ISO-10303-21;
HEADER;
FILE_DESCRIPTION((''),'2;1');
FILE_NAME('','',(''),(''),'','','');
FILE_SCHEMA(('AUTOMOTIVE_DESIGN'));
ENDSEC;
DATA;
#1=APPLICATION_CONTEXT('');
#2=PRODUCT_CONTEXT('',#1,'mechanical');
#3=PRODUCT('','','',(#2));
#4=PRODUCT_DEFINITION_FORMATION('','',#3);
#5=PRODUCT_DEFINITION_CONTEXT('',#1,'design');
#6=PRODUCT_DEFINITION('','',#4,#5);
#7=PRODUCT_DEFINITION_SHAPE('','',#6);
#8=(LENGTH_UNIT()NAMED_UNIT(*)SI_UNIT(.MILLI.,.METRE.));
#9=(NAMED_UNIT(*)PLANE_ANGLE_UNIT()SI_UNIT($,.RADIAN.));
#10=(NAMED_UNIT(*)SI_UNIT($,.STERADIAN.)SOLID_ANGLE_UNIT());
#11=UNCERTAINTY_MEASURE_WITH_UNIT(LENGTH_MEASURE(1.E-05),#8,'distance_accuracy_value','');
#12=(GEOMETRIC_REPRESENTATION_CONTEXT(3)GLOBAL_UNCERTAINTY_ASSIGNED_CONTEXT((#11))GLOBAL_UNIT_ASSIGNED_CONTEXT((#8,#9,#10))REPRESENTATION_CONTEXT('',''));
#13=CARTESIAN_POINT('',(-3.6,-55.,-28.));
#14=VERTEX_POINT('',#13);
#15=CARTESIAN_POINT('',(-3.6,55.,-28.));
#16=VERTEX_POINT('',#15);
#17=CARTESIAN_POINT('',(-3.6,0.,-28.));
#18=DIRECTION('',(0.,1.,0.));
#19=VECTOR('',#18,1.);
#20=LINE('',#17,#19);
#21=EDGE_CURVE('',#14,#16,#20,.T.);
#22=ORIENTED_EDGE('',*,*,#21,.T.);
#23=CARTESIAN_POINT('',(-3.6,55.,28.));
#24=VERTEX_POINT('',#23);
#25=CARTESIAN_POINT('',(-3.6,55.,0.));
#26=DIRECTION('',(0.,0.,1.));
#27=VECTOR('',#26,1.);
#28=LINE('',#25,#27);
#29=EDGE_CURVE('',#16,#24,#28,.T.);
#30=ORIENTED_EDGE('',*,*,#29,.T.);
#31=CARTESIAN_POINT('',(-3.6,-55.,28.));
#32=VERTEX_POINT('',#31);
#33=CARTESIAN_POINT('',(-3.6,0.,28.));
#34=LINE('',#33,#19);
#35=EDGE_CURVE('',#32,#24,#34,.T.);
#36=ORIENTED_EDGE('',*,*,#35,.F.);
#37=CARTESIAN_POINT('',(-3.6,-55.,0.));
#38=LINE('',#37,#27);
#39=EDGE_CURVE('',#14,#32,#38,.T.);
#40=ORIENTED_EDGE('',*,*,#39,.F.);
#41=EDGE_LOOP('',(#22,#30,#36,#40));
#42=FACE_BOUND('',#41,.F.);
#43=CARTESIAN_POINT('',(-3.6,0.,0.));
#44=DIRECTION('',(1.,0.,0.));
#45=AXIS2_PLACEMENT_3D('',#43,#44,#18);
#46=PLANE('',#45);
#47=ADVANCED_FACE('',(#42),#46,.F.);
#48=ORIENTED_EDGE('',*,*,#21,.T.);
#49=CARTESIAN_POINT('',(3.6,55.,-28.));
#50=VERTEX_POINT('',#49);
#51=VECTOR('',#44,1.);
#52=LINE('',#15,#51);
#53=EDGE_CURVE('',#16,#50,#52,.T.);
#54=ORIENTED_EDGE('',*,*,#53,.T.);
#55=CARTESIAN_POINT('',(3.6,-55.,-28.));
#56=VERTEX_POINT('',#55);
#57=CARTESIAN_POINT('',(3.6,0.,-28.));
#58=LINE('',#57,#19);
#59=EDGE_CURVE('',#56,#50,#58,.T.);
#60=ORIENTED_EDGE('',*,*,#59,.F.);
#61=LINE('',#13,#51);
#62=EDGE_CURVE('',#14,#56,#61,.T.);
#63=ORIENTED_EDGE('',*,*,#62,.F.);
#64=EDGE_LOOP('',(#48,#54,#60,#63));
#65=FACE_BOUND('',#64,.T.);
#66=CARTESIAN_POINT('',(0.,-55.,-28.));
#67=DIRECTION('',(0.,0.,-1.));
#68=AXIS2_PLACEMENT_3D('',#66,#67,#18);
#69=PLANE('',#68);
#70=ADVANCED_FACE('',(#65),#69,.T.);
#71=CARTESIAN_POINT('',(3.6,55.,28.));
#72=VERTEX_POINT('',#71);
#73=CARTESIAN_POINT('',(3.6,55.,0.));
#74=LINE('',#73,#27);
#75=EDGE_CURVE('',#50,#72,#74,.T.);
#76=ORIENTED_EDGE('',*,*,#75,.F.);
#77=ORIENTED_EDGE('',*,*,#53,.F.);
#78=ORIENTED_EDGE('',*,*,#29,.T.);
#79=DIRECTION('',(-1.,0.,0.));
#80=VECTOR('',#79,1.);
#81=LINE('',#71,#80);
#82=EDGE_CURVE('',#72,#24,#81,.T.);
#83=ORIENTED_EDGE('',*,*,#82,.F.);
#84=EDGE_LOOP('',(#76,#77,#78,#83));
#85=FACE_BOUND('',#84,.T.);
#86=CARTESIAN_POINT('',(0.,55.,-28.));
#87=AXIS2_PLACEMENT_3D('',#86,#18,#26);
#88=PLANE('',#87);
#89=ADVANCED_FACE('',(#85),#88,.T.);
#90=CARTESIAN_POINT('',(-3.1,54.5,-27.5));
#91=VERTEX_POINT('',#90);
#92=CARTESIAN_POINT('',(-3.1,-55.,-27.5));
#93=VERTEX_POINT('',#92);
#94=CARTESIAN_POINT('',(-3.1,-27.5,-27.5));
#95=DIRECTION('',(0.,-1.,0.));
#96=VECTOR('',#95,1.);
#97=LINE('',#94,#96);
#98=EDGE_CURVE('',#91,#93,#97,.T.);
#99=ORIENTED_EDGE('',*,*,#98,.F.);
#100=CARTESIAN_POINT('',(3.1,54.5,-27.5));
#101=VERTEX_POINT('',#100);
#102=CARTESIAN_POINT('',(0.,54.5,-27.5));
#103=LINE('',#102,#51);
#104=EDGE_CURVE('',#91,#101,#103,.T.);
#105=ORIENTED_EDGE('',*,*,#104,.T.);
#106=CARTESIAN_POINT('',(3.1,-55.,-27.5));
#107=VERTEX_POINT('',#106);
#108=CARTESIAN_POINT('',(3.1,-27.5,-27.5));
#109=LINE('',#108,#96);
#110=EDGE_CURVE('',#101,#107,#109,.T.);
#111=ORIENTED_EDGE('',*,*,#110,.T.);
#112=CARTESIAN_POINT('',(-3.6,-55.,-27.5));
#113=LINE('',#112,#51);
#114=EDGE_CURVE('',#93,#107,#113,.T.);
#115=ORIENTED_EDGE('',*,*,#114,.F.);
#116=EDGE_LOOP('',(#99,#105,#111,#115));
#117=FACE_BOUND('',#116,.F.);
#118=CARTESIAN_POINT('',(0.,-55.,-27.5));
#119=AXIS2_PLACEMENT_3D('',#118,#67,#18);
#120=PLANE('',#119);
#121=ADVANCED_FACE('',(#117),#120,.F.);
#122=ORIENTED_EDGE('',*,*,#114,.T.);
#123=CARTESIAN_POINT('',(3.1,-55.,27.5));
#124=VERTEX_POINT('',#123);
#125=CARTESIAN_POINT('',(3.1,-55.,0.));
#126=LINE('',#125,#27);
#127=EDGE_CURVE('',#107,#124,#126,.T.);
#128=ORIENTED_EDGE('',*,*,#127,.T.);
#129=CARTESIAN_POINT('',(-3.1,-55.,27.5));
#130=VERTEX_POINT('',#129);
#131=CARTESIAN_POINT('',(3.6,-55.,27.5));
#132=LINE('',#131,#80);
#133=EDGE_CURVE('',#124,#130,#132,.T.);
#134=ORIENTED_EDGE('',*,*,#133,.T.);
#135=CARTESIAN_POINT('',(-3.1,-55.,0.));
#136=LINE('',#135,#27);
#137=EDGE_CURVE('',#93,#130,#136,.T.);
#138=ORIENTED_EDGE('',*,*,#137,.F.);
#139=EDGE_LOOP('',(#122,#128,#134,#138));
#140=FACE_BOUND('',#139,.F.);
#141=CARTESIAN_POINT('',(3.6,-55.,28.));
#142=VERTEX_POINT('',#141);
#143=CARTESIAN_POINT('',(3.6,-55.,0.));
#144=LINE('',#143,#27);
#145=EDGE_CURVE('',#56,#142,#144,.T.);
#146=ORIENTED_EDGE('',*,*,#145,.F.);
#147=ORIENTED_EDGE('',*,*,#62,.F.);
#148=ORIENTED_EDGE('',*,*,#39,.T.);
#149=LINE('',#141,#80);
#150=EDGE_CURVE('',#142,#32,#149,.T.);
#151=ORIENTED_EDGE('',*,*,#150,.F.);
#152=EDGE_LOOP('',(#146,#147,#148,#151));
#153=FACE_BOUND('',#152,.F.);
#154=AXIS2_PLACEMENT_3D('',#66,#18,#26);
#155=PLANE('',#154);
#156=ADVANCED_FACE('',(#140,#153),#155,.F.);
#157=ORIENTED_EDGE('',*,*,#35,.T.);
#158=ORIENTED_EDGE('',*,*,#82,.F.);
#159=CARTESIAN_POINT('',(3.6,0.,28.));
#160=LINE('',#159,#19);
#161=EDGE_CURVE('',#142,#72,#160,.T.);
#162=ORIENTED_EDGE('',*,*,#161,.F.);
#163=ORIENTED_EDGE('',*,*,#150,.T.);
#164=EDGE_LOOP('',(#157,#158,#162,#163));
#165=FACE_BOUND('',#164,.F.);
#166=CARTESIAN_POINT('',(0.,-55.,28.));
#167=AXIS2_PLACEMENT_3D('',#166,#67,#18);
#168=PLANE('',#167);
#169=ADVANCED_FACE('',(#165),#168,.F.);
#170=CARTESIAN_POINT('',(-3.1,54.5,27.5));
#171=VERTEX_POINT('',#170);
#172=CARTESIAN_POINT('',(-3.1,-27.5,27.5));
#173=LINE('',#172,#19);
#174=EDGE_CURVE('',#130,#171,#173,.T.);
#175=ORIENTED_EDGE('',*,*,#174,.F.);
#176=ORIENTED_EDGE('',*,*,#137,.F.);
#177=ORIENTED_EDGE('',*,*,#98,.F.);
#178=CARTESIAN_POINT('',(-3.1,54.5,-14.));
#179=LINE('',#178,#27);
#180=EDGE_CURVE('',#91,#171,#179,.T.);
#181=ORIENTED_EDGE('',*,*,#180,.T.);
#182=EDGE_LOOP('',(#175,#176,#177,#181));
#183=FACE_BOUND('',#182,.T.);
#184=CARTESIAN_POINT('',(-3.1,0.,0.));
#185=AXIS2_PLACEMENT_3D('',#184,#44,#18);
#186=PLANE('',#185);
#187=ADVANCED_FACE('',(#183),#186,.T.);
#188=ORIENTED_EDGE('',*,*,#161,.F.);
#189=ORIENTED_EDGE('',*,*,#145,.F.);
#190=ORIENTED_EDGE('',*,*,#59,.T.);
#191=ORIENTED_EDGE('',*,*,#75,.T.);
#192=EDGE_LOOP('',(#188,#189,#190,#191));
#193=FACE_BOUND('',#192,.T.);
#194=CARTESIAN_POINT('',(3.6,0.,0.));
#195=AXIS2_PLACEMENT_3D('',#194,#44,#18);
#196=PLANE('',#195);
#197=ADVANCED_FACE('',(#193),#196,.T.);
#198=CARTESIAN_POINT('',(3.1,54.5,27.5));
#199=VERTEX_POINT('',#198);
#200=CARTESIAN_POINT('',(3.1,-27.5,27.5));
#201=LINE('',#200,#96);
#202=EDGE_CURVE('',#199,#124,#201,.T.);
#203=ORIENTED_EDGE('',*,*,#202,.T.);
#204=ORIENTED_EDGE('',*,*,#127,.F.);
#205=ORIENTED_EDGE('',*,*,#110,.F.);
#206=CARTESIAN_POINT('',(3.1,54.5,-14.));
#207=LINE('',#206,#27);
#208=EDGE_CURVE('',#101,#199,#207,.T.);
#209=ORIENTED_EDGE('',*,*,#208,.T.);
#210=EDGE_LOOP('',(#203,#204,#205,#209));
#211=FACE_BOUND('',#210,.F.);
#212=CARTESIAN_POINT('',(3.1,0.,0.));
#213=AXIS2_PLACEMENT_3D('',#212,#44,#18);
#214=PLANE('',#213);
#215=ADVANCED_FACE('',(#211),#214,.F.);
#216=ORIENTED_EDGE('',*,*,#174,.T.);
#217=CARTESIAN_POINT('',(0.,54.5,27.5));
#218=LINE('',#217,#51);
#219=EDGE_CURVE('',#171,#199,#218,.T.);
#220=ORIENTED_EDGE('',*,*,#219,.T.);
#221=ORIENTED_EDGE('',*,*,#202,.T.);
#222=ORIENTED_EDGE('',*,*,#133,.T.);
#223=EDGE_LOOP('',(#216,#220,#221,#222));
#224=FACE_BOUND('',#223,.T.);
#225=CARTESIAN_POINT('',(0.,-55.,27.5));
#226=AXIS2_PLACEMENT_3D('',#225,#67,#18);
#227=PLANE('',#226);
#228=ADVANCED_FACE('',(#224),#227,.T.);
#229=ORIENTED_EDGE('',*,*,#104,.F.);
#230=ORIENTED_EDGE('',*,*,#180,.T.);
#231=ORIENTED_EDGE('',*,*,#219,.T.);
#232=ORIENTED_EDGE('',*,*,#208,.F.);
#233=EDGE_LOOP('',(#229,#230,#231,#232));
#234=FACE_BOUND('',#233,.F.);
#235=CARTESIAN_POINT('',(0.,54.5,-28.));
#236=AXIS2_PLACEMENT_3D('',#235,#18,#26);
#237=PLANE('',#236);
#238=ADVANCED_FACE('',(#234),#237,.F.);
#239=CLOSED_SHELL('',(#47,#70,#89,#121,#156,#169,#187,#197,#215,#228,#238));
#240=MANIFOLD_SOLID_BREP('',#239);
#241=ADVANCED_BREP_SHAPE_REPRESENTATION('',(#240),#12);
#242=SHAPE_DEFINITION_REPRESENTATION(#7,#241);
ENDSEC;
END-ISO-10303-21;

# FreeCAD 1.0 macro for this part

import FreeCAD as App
import Part
import Sketcher
from FreeCAD import Vector


def faces_at(feature, points):
    """Names of the faces that lie closest to the given points."""
    faces = feature.Shape.Faces
    near = lambda p: min(range(len(faces)), key=lambda i: faces[i].distToShape(Part.Vertex(*p))[0])
    return sorted({f"Face{near(p) + 1}" for p in points})

doc = App.newDocument("Part")
body = doc.addObject("PartDesign::Body", "Body")

sketch1 = body.newObject("Sketcher::SketchObject", "Sketch")
sketch1.AttachmentSupport = (doc.getObject("YZ_Plane"), [""])
sketch1.MapMode = "FlatFace"
sketch1.addGeometry(Part.LineSegment(Vector(-55, 28, 0), Vector(-55, -28, 0)), False)
sketch1.addGeometry(Part.LineSegment(Vector(-55, -28, 0), Vector(55, -28, 0)), False)
sketch1.addGeometry(Part.LineSegment(Vector(55, -28, 0), Vector(55, 28, 0)), False)
sketch1.addGeometry(Part.LineSegment(Vector(55, 28, 0), Vector(-55, 28, 0)), False)
sketch1.addConstraint(Sketcher.Constraint("Coincident", 0, 2, 1, 1))
sketch1.addConstraint(Sketcher.Constraint("Coincident", 1, 2, 2, 1))
sketch1.addConstraint(Sketcher.Constraint("Coincident", 2, 2, 3, 1))
sketch1.addConstraint(Sketcher.Constraint("Coincident", 3, 2, 0, 1))
sketch1.addConstraint(Sketcher.Constraint("Vertical", 0))
sketch1.addConstraint(Sketcher.Constraint("Horizontal", 1))
sketch1.addConstraint(Sketcher.Constraint("Vertical", 2))
sketch1.addConstraint(Sketcher.Constraint("Horizontal", 3))
sketch1.addConstraint(Sketcher.Constraint("Symmetric", 0, 2, 2, 2, -1, 1))
sketch1.addConstraint(Sketcher.Constraint("DistanceX", 1, 1, 1, 2, 110.0))
sketch1.addConstraint(Sketcher.Constraint("DistanceY", 0, 2, 0, 1, 56.0))
pad1 = body.newObject("PartDesign::Pad", "Pad")
pad1.Profile = sketch1
pad1.Length = 7.2
pad1.Midplane = True
doc.recompute()

thickness = body.newObject("PartDesign::Thickness", "Thickness")
thickness.Base = (pad1, faces_at(pad1, [(0, -55, 0)]))
thickness.Value = 0.5
thickness.Reversed = True
thickness.Join = "Arc"

doc.recompute()
